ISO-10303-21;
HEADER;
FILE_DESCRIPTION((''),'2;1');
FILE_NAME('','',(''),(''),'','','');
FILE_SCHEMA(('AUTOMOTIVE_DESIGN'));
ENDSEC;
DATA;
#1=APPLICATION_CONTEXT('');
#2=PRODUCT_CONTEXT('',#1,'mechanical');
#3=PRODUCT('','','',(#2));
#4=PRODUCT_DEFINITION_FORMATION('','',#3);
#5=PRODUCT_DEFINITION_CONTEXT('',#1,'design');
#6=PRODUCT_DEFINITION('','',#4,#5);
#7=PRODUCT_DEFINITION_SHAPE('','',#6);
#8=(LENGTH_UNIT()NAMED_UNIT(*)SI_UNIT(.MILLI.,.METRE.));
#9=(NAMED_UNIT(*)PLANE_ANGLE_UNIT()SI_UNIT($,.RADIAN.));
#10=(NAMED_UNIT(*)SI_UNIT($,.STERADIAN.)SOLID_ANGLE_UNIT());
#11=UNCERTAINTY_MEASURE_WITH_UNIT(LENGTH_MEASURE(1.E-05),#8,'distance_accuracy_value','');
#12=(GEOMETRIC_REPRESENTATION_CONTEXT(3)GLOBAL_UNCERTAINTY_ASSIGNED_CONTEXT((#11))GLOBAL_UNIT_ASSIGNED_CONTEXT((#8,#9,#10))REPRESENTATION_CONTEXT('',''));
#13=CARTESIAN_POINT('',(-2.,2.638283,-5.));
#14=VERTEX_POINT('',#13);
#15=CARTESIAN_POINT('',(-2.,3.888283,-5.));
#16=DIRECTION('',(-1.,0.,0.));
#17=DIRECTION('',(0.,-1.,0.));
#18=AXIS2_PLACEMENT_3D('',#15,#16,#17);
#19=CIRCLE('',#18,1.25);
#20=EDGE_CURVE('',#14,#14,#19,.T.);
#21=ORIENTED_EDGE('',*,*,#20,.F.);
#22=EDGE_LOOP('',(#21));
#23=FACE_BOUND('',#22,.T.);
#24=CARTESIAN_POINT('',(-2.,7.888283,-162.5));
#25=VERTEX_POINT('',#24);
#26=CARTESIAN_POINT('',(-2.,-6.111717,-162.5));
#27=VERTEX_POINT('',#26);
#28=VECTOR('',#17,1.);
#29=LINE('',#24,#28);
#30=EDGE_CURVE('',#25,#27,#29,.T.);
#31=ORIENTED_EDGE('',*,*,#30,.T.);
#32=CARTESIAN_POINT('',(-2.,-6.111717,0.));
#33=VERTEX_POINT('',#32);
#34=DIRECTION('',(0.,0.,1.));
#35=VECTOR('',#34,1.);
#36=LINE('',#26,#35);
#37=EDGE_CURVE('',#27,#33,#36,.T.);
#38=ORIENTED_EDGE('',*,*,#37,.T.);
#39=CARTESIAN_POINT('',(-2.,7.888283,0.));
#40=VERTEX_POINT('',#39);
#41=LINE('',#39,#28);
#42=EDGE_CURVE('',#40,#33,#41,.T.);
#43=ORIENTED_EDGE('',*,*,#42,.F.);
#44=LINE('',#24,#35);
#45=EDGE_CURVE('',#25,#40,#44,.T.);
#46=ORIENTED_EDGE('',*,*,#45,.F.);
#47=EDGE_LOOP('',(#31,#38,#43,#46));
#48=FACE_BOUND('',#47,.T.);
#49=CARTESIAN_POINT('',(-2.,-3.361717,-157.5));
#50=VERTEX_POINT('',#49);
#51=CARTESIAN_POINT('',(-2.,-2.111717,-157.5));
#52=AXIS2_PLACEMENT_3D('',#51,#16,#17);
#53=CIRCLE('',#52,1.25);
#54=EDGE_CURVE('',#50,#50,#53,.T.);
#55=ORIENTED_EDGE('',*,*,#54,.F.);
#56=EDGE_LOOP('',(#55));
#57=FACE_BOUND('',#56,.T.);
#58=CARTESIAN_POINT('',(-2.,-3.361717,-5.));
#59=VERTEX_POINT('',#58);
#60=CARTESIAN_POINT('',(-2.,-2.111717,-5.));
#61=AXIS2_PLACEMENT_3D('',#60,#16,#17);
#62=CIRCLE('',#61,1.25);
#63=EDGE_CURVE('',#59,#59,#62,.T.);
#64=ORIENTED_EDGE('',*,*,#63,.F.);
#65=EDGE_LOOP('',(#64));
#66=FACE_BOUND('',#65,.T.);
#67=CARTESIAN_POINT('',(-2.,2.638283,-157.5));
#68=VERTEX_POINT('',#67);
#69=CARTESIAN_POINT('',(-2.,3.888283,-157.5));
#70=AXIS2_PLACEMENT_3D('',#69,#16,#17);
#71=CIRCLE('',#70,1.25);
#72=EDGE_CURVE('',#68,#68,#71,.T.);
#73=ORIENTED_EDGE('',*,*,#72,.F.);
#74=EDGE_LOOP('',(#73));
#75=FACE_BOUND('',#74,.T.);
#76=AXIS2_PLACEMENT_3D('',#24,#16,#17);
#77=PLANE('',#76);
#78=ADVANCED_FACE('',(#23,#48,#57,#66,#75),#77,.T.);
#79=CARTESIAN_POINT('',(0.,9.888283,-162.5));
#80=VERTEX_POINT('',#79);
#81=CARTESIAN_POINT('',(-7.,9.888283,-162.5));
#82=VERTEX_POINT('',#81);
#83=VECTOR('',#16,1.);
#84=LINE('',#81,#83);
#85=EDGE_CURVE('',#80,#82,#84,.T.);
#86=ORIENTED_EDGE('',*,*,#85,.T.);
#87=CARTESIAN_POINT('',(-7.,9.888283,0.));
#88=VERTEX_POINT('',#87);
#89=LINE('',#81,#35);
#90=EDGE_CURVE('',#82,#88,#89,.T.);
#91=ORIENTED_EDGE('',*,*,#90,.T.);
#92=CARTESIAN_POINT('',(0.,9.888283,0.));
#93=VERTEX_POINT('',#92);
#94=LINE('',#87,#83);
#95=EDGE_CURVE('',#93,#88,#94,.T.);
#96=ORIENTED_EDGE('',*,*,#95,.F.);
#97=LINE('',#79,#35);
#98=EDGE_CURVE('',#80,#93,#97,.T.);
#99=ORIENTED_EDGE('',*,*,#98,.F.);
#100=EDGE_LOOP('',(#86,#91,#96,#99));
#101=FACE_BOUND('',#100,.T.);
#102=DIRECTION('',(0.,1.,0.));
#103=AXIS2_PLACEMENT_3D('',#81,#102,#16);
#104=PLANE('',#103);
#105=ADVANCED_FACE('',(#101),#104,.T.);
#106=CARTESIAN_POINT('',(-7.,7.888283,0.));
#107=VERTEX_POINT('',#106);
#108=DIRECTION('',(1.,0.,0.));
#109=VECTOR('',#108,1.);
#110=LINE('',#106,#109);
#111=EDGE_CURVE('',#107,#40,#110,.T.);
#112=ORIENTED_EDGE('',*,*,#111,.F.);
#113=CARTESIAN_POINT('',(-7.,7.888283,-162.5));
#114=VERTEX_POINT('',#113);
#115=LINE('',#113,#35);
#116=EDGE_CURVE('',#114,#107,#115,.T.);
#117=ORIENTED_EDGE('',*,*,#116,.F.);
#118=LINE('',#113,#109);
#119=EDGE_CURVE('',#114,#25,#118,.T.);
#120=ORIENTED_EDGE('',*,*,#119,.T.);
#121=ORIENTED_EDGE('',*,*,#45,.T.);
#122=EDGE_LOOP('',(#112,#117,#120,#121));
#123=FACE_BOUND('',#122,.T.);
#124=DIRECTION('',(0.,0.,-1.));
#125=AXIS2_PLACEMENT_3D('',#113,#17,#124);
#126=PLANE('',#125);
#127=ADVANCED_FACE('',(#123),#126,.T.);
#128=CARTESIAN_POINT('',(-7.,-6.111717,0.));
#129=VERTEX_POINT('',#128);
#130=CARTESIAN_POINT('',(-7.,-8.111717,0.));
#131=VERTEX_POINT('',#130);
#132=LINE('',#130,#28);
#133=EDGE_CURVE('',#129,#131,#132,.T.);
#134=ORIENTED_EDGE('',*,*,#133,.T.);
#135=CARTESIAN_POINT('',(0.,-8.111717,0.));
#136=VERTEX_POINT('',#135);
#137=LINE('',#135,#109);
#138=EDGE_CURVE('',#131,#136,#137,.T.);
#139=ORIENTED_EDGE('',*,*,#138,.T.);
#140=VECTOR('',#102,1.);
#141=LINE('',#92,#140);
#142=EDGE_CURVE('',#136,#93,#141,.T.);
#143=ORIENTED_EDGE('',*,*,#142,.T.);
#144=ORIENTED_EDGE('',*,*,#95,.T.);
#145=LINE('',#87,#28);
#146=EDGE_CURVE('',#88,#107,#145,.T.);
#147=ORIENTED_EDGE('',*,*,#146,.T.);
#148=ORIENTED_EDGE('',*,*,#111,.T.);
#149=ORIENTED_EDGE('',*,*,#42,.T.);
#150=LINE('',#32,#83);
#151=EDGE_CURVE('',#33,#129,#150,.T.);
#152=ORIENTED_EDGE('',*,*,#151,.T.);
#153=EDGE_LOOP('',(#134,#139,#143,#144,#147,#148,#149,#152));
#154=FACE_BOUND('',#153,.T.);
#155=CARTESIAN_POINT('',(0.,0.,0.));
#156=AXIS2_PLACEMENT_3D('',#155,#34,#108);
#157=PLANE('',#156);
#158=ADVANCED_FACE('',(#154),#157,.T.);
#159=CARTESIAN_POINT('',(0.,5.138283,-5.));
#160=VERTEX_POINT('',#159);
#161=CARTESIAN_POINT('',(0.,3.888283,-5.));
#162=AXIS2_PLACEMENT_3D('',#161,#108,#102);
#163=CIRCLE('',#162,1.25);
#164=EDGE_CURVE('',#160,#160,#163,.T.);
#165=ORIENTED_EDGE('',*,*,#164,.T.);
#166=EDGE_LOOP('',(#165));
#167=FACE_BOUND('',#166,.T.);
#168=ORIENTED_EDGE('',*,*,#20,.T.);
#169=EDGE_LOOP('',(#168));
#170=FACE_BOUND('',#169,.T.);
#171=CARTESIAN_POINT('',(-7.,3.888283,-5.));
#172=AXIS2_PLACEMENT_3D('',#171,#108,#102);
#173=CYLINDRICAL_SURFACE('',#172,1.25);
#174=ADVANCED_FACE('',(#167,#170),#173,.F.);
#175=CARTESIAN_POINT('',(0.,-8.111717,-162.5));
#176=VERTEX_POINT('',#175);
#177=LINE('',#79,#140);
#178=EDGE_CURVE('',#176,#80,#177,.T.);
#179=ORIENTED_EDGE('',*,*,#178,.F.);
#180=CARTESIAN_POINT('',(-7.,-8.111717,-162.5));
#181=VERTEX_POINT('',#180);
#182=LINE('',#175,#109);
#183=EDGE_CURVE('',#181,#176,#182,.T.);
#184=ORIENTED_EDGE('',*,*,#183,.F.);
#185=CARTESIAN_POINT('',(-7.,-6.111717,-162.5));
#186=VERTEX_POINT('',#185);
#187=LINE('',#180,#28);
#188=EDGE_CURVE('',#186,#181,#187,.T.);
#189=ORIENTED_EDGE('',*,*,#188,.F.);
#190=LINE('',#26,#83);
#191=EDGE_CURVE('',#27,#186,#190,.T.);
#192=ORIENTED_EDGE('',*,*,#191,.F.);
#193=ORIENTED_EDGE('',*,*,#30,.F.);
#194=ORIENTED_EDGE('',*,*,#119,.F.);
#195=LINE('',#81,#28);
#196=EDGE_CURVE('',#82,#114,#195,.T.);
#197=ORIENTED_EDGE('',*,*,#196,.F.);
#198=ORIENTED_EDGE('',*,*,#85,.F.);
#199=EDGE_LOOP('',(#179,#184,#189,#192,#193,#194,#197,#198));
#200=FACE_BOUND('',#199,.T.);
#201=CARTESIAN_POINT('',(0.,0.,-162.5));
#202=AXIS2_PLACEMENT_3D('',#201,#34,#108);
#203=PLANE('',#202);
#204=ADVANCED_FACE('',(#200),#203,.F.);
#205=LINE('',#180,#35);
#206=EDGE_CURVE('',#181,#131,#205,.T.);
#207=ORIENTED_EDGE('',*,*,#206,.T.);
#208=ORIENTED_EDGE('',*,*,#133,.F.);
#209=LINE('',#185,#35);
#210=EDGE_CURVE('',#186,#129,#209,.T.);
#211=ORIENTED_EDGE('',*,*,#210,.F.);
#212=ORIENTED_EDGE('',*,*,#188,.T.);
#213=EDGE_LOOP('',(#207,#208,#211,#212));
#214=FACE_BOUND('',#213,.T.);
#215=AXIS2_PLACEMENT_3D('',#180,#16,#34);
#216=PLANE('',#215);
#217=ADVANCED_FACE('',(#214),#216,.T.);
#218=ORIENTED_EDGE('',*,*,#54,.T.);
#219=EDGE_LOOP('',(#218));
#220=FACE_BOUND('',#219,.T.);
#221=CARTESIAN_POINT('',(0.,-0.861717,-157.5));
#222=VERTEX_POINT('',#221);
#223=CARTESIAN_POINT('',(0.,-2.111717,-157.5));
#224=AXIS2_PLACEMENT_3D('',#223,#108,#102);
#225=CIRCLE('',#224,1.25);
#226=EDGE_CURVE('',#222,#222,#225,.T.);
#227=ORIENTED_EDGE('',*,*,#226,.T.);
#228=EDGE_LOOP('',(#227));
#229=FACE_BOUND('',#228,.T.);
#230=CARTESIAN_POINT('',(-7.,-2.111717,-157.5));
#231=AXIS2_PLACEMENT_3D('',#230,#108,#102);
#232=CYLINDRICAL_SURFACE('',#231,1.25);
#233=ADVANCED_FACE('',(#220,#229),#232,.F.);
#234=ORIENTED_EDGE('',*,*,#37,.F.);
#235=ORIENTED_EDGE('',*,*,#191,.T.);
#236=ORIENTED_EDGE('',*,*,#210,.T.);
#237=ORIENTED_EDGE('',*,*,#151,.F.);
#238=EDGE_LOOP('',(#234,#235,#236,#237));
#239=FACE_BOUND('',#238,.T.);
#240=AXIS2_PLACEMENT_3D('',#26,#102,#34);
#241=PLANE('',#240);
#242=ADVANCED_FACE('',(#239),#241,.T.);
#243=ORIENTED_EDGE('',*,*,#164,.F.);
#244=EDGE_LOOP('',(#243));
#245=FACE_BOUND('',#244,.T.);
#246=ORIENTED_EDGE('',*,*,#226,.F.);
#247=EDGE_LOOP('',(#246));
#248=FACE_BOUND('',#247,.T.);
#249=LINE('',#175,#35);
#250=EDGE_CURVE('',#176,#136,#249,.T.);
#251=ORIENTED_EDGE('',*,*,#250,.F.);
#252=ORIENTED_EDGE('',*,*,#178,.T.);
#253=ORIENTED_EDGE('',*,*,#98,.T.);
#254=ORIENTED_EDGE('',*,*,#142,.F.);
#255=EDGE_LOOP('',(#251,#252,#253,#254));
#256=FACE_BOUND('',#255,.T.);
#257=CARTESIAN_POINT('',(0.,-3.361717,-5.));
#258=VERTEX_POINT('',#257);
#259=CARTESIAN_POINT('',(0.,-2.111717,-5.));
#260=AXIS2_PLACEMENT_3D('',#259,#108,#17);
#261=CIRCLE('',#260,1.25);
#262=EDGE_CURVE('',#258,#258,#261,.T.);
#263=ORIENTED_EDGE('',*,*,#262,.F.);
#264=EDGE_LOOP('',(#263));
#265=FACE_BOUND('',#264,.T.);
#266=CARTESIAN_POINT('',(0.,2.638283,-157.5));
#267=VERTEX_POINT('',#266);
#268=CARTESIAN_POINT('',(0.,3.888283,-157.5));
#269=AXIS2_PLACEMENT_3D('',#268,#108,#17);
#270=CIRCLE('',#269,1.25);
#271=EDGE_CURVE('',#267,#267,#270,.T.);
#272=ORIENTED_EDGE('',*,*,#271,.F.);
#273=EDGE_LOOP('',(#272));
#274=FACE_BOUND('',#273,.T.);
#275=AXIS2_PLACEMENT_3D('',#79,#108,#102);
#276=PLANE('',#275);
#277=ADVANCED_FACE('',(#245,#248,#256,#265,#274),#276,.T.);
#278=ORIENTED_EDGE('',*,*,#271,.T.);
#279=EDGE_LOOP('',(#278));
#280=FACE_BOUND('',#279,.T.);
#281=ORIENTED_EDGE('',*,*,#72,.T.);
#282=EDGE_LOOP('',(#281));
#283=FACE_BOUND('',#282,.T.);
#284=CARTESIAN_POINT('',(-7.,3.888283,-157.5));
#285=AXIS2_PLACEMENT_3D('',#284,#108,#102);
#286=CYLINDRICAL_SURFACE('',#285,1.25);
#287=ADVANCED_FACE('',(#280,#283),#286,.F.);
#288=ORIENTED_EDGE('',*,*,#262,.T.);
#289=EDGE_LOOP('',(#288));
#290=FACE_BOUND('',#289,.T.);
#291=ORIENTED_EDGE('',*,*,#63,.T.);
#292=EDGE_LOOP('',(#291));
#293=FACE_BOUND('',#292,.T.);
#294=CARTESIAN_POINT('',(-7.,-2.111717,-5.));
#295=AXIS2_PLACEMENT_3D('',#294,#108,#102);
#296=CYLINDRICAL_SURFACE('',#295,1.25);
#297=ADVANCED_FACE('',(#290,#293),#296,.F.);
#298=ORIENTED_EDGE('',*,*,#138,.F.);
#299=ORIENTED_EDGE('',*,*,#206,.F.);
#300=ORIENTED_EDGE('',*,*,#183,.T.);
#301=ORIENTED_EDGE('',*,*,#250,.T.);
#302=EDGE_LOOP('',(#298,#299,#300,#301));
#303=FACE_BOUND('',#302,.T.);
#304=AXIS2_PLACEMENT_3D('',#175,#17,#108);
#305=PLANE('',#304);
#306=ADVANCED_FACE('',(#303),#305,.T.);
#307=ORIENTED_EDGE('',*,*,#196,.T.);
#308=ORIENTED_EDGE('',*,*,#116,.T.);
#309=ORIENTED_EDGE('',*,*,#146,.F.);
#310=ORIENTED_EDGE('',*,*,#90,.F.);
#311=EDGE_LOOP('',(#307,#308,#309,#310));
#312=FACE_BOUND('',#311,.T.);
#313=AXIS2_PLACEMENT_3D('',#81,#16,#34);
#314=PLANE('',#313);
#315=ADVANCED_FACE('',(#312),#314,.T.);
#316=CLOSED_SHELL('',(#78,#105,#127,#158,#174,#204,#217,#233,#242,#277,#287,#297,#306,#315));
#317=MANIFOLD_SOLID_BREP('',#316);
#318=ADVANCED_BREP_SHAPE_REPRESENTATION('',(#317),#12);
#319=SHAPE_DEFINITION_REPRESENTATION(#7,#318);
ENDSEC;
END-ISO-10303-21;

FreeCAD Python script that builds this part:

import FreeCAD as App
import Part
import Sketcher
Q = App.Units.Quantity


def add_polygon(sketch, points):
    """Adds a closed chain of lines whose ends are joined by coincident constraints."""
    first, n = sketch.GeometryCount, len(points)
    for a, b in zip(points, points[1:] + points[:1]):
        sketch.addGeometry(Part.LineSegment(App.Vector(*a, 0), App.Vector(*b, 0)), False)
    for i in range(n):
        sketch.addConstraint(Sketcher.Constraint("Coincident", first + i, 2, first + (i + 1) % n, 1))

doc = App.newDocument("Part")
body = doc.addObject("PartDesign::Body", "Body")

sketch1 = doc.addObject("Sketcher::SketchObject", "Sketch")
body.addObject(sketch1)
sketch1.AttachmentSupport = (doc.XY_Plane, [""])
sketch1.MapMode = "FlatFace"
add_polygon(sketch1, [(0, 9.888283), (-7, 9.888283), (-7, 7.888283), (-2, 7.888283), (-2, -6.111717), (-7, -6.111717), (-7, -8.111717), (0, -8.111717)])
sketch1.addConstraint(Sketcher.Constraint("Horizontal", 0))
sketch1.addConstraint(Sketcher.Constraint("Vertical", 1))
sketch1.addConstraint(Sketcher.Constraint("Horizontal", 2))
sketch1.addConstraint(Sketcher.Constraint("Vertical", 3))
sketch1.addConstraint(Sketcher.Constraint("Horizontal", 4))
sketch1.addConstraint(Sketcher.Constraint("Vertical", 5))
sketch1.addConstraint(Sketcher.Constraint("Horizontal", 6))
sketch1.addConstraint(Sketcher.Constraint("Vertical", 7))
sketch1.addConstraint(Sketcher.Constraint("PointOnObject", 6, 2, -2))
sketch1.addConstraint(Sketcher.Constraint("Vertical", 1, 2, 4, 2))
sketch1.addConstraint(Sketcher.Constraint("Equal", 1, 5))
sketch1.addConstraint(Sketcher.Constraint("DistanceX", 0, 2, 0, 1, Q("7 mm")))
sketch1.addConstraint(Sketcher.Constraint("DistanceX", 2, 1, 2, 2, Q("5 mm")))
sketch1.addConstraint(Sketcher.Constraint("DistanceY", 1, 2, 1, 1, Q("2 mm")))
sketch1.addConstraint(Sketcher.Constraint("DistanceY", 3, 2, 3, 1, Q("14 mm")))
sketch1.addConstraint(Sketcher.Constraint("DistanceY", -1, 1, 0, 2, Q("9.888283 mm")))
pad1 = doc.addObject("PartDesign::Pad", "Pad")
body.addObject(pad1)
pad1.Profile = sketch1
pad1.Length = 162.5
pad1.Reversed = True

sketch2 = doc.addObject("Sketcher::SketchObject", "Sketch001")
body.addObject(sketch2)
sketch2.AttachmentSupport = (doc.YZ_Plane, [""])
sketch2.MapMode = "FlatFace"
sketch2.addGeometry(Part.Circle(App.Vector(3.888283, -5, 0), App.Vector(0, 0, 1), 1.25), False)
sketch2.addGeometry(Part.Circle(App.Vector(-2.111717, -5, 0), App.Vector(0, 0, 1), 1.25), False)
sketch2.addGeometry(Part.Circle(App.Vector(-2.111717, -157.5, 0), App.Vector(0, 0, 1), 1.25), False)
sketch2.addGeometry(Part.Circle(App.Vector(3.888283, -157.5, 0), App.Vector(0, 0, 1), 1.25), False)
sketch2.addConstraint(Sketcher.Constraint("Equal", 0, 1))
sketch2.addConstraint(Sketcher.Constraint("Equal", 1, 2))
sketch2.addConstraint(Sketcher.Constraint("Equal", 2, 3))
sketch2.addConstraint(Sketcher.Constraint("Horizontal", 0, 3, 1, 3))
sketch2.addConstraint(Sketcher.Constraint("Horizontal", 2, 3, 3, 3))
sketch2.addConstraint(Sketcher.Constraint("Vertical", 1, 3, 2, 3))
sketch2.addConstraint(Sketcher.Constraint("Vertical", 0, 3, 3, 3))
sketch2.addConstraint(Sketcher.Constraint("Diameter", 0, Q("2.5 mm")))
sketch2.addConstraint(Sketcher.Constraint("DistanceY", 0, 3, -1, 1, Q("5 mm")))
sketch2.addConstraint(Sketcher.Constraint("DistanceX", 1, 3, 0, 3, Q("6 mm")))
sketch2.addConstraint(Sketcher.Constraint("DistanceY", 2, 3, -1, 1, Q("157.5 mm")))
sketch2.addConstraint(Sketcher.Constraint("DistanceX", -1, 1, 0, 3, Q("3.888283 mm")))
pocket1 = doc.addObject("PartDesign::Pocket", "Pocket")
body.addObject(pocket1)
pocket1.Profile = sketch2
pocket1.Type = "ThroughAll"

doc.recompute()
